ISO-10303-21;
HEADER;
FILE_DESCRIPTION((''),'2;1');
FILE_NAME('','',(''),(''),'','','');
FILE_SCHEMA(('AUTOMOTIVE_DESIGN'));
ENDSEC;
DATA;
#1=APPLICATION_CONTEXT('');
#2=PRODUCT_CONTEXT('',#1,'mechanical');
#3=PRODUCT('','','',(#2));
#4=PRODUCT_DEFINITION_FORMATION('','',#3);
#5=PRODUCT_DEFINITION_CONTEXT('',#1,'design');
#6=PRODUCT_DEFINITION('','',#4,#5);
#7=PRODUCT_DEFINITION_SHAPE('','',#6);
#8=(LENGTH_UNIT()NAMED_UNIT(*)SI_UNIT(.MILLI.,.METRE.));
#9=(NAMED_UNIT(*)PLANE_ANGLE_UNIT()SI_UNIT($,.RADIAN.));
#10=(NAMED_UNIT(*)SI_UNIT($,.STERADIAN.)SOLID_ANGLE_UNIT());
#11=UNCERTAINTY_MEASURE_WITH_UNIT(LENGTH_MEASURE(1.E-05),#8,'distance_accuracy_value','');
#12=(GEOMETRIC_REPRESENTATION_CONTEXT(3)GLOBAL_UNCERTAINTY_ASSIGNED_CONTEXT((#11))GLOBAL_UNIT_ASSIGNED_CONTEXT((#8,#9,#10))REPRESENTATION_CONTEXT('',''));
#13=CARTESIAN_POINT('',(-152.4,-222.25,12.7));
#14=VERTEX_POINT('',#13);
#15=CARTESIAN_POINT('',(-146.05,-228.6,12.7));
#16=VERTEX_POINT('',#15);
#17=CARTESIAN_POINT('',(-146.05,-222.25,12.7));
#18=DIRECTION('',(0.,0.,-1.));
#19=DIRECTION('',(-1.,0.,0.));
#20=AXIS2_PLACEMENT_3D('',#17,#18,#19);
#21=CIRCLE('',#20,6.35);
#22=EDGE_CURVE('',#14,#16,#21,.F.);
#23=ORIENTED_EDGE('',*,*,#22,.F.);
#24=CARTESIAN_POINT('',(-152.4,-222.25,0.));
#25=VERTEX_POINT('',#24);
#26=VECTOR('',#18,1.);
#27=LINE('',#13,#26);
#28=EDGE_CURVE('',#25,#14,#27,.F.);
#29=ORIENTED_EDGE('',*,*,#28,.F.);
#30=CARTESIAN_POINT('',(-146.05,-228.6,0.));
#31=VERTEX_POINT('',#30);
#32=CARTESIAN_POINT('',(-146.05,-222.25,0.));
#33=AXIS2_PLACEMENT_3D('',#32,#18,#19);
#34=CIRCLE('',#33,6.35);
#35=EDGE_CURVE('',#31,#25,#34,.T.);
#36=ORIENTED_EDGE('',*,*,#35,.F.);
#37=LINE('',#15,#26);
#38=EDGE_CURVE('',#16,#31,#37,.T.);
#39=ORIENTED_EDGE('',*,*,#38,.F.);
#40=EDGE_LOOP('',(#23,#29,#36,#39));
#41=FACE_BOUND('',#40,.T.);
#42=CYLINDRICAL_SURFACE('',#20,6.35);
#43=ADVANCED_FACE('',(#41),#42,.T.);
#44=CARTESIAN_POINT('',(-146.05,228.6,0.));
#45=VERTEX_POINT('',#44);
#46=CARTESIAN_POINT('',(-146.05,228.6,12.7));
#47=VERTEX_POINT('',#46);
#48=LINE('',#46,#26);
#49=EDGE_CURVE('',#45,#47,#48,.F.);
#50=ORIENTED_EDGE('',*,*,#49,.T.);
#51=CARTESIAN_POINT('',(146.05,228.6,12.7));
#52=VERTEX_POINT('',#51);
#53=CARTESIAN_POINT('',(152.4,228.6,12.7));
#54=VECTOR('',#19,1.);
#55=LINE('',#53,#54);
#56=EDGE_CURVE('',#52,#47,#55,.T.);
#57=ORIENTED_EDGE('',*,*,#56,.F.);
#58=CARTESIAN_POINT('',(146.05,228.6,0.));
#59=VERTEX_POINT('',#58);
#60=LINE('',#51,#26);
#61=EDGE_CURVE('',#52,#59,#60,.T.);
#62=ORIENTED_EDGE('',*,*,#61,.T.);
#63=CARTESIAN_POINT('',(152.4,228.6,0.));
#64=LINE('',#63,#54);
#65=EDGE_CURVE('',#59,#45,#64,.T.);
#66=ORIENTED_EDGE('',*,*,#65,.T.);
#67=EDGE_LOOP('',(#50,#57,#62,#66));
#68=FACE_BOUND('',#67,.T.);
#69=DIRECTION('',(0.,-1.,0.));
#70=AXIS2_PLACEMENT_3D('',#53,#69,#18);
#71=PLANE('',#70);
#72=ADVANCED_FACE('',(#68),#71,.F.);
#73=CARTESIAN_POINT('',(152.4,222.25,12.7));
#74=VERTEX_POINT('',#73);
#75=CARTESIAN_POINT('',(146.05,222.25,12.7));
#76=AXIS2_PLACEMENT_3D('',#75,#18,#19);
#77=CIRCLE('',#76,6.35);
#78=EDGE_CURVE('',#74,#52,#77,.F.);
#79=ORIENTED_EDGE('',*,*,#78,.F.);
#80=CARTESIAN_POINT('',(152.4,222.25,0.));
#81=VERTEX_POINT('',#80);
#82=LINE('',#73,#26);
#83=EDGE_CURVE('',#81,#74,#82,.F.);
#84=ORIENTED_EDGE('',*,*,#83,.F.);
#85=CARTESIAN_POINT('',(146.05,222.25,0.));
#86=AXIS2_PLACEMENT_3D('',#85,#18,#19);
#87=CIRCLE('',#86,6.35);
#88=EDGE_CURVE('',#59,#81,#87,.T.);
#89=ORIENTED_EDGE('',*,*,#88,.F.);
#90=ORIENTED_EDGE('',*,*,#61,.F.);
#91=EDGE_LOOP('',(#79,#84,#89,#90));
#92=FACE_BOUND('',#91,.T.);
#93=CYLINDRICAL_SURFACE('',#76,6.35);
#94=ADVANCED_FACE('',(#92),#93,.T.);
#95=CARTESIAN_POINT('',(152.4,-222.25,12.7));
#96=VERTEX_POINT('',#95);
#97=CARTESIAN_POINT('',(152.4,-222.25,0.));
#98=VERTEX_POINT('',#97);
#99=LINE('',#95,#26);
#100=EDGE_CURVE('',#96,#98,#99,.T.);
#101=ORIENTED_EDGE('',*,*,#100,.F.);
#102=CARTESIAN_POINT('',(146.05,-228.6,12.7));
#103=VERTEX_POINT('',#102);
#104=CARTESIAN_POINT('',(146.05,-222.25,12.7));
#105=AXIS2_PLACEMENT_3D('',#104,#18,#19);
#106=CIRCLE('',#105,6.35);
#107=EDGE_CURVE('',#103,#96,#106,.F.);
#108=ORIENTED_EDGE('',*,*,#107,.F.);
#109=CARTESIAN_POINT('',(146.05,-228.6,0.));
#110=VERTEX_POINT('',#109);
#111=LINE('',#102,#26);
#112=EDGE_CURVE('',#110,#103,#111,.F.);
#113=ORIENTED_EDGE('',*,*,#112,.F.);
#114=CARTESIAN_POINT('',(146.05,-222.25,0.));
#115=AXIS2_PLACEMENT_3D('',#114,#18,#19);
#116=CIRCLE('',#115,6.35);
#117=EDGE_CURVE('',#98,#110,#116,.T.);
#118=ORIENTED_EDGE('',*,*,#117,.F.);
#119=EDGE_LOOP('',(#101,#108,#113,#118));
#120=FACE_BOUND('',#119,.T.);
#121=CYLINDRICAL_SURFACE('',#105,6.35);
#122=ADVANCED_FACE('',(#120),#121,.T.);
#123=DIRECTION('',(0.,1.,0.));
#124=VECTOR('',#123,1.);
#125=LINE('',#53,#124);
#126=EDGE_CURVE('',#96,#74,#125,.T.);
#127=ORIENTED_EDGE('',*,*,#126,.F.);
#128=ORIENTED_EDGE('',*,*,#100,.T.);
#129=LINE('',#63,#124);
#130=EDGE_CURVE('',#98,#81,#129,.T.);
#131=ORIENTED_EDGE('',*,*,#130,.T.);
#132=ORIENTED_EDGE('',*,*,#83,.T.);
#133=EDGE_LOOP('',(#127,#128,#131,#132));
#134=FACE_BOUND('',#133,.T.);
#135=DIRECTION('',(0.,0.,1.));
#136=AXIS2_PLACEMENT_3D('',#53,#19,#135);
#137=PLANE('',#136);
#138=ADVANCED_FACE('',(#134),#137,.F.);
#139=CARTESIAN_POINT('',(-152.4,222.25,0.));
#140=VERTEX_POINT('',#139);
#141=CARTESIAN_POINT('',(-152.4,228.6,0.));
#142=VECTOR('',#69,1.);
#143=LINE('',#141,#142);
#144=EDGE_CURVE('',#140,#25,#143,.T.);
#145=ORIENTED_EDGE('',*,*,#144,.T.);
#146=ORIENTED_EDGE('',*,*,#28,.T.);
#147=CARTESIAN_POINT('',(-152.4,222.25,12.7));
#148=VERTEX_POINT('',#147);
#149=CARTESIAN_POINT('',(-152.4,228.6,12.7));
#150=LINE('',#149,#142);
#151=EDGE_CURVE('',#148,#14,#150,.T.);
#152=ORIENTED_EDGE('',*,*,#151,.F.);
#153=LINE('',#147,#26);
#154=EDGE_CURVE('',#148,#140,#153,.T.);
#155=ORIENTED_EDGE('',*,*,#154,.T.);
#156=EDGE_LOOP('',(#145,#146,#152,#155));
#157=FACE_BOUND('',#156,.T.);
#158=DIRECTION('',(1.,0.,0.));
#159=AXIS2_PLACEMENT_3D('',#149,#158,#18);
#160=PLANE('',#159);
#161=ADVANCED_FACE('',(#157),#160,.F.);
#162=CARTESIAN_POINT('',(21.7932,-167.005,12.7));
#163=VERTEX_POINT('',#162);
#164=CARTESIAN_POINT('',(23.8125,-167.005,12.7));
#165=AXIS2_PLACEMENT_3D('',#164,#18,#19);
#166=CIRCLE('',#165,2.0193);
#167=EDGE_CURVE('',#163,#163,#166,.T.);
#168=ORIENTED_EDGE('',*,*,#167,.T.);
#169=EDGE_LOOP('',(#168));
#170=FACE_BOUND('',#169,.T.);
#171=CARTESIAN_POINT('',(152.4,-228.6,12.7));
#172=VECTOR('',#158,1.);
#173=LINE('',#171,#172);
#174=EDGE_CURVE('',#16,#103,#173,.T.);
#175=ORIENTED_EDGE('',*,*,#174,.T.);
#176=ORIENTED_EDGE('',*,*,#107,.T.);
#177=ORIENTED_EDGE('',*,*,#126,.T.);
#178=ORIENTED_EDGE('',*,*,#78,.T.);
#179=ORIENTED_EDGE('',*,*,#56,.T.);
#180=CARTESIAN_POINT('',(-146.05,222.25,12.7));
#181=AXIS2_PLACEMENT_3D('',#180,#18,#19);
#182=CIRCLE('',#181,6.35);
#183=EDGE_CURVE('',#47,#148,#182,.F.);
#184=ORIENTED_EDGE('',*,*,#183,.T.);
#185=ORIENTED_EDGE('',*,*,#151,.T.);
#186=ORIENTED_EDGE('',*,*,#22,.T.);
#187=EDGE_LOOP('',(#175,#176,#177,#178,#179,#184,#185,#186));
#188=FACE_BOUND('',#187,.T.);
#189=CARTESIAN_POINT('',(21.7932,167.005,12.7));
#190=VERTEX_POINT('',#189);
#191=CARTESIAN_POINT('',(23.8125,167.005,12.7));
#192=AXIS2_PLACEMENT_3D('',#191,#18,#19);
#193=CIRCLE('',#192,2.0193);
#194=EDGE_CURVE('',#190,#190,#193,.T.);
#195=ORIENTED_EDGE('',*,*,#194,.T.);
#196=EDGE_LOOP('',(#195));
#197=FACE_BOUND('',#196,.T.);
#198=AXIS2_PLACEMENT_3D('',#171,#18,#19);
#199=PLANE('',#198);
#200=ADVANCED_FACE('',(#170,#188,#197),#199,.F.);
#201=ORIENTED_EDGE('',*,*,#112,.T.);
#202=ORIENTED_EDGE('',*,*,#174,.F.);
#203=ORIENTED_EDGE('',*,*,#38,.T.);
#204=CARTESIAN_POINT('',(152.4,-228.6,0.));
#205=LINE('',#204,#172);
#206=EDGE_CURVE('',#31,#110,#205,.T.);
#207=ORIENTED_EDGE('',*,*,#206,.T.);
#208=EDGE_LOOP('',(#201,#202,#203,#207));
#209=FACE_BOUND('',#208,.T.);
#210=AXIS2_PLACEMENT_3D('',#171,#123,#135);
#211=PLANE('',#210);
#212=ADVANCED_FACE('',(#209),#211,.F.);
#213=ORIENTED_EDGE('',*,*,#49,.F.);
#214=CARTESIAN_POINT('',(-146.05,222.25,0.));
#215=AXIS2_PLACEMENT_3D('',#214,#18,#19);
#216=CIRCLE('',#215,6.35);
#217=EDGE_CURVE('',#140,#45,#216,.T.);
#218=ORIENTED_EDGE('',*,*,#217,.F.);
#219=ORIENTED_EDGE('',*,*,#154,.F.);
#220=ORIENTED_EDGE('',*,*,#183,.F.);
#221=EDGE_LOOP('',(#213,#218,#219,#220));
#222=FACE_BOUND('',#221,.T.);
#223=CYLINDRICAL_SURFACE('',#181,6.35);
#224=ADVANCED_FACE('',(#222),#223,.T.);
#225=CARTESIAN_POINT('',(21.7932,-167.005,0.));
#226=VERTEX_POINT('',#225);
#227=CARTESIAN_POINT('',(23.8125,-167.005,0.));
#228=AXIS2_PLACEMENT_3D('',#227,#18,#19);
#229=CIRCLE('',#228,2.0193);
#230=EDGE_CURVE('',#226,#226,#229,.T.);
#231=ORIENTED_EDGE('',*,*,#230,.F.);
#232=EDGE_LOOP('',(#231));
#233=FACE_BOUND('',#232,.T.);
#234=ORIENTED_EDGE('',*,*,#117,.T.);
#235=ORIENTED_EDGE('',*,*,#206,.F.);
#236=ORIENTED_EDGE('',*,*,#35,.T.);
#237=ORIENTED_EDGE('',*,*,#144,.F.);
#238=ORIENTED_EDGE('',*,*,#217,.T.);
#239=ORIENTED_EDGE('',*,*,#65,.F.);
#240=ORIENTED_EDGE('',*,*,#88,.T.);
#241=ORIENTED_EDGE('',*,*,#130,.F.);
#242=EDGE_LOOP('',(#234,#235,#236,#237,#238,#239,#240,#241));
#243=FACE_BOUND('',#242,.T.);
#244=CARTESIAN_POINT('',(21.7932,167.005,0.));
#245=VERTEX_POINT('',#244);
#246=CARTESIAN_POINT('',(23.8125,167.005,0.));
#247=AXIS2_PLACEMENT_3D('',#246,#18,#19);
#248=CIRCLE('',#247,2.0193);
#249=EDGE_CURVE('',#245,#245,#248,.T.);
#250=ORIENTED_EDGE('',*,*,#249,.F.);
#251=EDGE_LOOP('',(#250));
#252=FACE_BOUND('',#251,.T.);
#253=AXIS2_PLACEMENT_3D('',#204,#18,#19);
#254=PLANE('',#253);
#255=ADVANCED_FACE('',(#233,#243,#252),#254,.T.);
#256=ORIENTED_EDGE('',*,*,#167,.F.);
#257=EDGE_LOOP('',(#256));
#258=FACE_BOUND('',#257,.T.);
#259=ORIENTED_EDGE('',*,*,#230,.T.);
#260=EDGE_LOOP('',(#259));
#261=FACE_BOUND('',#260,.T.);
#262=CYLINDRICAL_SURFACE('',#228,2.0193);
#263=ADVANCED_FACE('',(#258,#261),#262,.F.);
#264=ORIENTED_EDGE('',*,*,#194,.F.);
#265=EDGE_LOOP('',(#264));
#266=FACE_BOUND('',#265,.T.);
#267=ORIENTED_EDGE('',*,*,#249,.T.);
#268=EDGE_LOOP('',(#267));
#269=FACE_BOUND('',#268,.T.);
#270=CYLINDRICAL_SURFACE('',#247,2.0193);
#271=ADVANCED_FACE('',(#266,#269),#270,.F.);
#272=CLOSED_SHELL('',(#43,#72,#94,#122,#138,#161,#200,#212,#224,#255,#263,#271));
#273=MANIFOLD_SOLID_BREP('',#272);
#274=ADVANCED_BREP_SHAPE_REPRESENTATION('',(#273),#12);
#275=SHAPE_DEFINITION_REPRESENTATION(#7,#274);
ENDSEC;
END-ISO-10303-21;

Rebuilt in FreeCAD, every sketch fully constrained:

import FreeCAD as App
import Part
import Sketcher
from FreeCAD import Vector
Q = App.Units.Quantity


def edges_at(feature, points):
    """Names of the edges that pass closest to the given points."""
    edges = feature.Shape.Edges
    near = lambda p: min(range(len(edges)), key=lambda i: edges[i].distToShape(Part.Vertex(*p))[0])
    return sorted({f"Edge{near(p) + 1}" for p in points})

doc = App.newDocument("Part")
body = doc.addObject("PartDesign::Body", "Body")

# Sketch on XY plane
sketch1 = body.newObject("Sketcher::SketchObject", "Sketch")
sketch1.AttachmentSupport = (doc.getObject("XY_Plane"), [""])
sketch1.MapMode = "FlatFace"
sketch1.addGeometry(Part.LineSegment(Vector(-152, 229, 0), Vector(-152, -229, 0)), False)
sketch1.addGeometry(Part.LineSegment(Vector(-152, -229, 0), Vector(152, -229, 0)), False)
sketch1.addGeometry(Part.LineSegment(Vector(152, -229, 0), Vector(152, 229, 0)), False)
sketch1.addGeometry(Part.LineSegment(Vector(152, 229, 0), Vector(-152, 229, 0)), False)
sketch1.addConstraint(Sketcher.Constraint("Coincident", 0, 2, 1, 1))
sketch1.addConstraint(Sketcher.Constraint("Coincident", 1, 2, 2, 1))
sketch1.addConstraint(Sketcher.Constraint("Coincident", 2, 2, 3, 1))
sketch1.addConstraint(Sketcher.Constraint("Coincident", 3, 2, 0, 1))
sketch1.addConstraint(Sketcher.Constraint("Vertical", 0))
sketch1.addConstraint(Sketcher.Constraint("Horizontal", 1))
sketch1.addConstraint(Sketcher.Constraint("Vertical", 2))
sketch1.addConstraint(Sketcher.Constraint("Horizontal", 3))
sketch1.addConstraint(Sketcher.Constraint("Symmetric", 0, 2, 2, 2, -1, 1))
sketch1.addConstraint(Sketcher.Constraint("DistanceX", 1, 1, 1, 2, Q("12 in")))
sketch1.addConstraint(Sketcher.Constraint("DistanceY", 0, 2, 0, 1, Q("18 in")))
pad1 = body.newObject("PartDesign::Pad", "Pad")
pad1.Profile = sketch1
pad1.Length = Q("0.5 in")
doc.recompute()

fillet = body.newObject("PartDesign::Fillet", "Fillet")
fillet.Base = (pad1, edges_at(pad1, [
    (152.4, -228.6, 6.35),
    (-152.4, -228.6, 6.35),
    (-152.4, 228.6, 6.35),
    (152.4, 228.6, 6.35),
]))
fillet.Radius = Q("0.25 in")

# Sketch on XY plane
sketch2 = body.newObject("Sketcher::SketchObject", "Sketch001")
sketch2.AttachmentSupport = (doc.getObject("XY_Plane"), [""])
sketch2.MapMode = "FlatFace"
sketch2.addGeometry(Part.Circle(Vector(23.8, -167, 0), Vector(0, 0, 1), 2), False)
sketch2.addGeometry(Part.Circle(Vector(23.8, 167, 0), Vector(0, 0, 1), 2), False)
sketch2.addConstraint(Sketcher.Constraint("Equal", 0, 1))
sketch2.addConstraint(Sketcher.Constraint("Symmetric", 0, 3, 1, 3, -1))
sketch2.addConstraint(Sketcher.Constraint("Diameter", 0, Q("0.159 in")))
sketch2.addConstraint(Sketcher.Constraint("DistanceY", 0, 3, 1, 3, Q("13.15 in")))
sketch2.addConstraint(Sketcher.Constraint("DistanceX", -1, 1, 0, 3, Q("0.9375 in")))
doc.recompute()
hole = body.newObject("PartDesign::Hole", "Hole")
hole.Profile = sketch2
hole.ThreadType = "None"
hole.Diameter = Q("0.159 in")
hole.DepthType = "ThroughAll"
hole.Reversed = True

doc.recompute()
